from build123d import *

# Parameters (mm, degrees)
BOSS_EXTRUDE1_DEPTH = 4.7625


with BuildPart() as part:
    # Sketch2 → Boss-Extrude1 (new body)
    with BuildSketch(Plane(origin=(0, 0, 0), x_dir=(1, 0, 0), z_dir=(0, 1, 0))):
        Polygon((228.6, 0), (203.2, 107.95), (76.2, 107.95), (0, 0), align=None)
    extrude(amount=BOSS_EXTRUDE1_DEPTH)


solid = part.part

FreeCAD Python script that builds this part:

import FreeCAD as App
import Part
import Sketcher
Q = App.Units.Quantity

doc = App.newDocument("Part")
body = doc.addObject("PartDesign::Body", "Body")

# Sketch on XZ plane
sketch1 = body.newObject("Sketcher::SketchObject", "Sketch")
sketch1.AttachmentSupport = (doc.getObject("XZ_Plane"), [""])
sketch1.MapMode = "FlatFace"
sketch1.addGeometry([
    Part.LineSegment(App.Vector(229, 0, 0), App.Vector(203, -108, 0)),
    Part.LineSegment(App.Vector(203, -108, 0), App.Vector(76, -108, 0)),
    Part.LineSegment(App.Vector(76, -108, 0), App.Vector(0, 0, 0)),
    Part.LineSegment(App.Vector(0, 0, 0), App.Vector(229, 0, 0)),
], False)
sketch1.addConstraint([
    Sketcher.Constraint("Coincident", 0, 2, 1, 1),
    Sketcher.Constraint("Coincident", 1, 2, 2, 1),
    Sketcher.Constraint("Coincident", 2, 2, 3, 1),
    Sketcher.Constraint("Coincident", 3, 2, 0, 1),
    Sketcher.Constraint("Horizontal", 1),
    Sketcher.Constraint("Horizontal", 3),
    Sketcher.Constraint("Coincident", 2, 2, -1, 1),
    Sketcher.Constraint("DistanceX", 1, 2, 1, 1, Q("5 in")),
    Sketcher.Constraint("DistanceX", 3, 1, 3, 2, Q("9 in")),
    Sketcher.Constraint("DistanceX", -1, 1, 0, 2, Q("8 in")),
    Sketcher.Constraint("DistanceY", 0, 2, -1, 1, Q("4.25 in")),
])
pad1 = body.newObject("PartDesign::Pad", "Pad")
pad1.Profile = sketch1
pad1.Length = Q("0.1875 in")
pad1.Reversed = True

doc.recompute()
